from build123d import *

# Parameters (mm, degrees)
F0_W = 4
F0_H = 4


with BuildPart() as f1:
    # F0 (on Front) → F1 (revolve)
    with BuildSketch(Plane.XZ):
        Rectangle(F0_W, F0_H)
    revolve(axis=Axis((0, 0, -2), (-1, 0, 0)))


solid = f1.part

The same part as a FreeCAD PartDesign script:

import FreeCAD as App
import Part
import Sketcher

V = App.Vector

doc = App.newDocument("Part")
body = doc.addObject("PartDesign::Body", "Body")

# Sketch on XZ plane
sketch1 = body.newObject("Sketcher::SketchObject", "Sketch")
sketch1.AttachmentSupport = (doc.getObject("XZ_Plane"), [""])
sketch1.MapMode = "FlatFace"
sketch1.addGeometry(Part.LineSegment(V(-2, 2, 0), V(-2, -2, 0)), False)
sketch1.addGeometry(Part.LineSegment(V(-2, -2, 0), V(2, -2, 0)), False)
sketch1.addGeometry(Part.LineSegment(V(2, -2, 0), V(2, 2, 0)), False)
sketch1.addGeometry(Part.LineSegment(V(2, 2, 0), V(-2, 2, 0)), False)
sketch1.addGeometry(Part.LineSegment(V(2, -2, 0), V(-2, -2, 0)), True)  # axis
sketch1.addConstraint(Sketcher.Constraint("Coincident", 0, 2, 1, 1))
sketch1.addConstraint(Sketcher.Constraint("Coincident", 1, 2, 2, 1))
sketch1.addConstraint(Sketcher.Constraint("Coincident", 2, 2, 3, 1))
sketch1.addConstraint(Sketcher.Constraint("Coincident", 3, 2, 0, 1))
sketch1.addConstraint(Sketcher.Constraint("Vertical", 0))
sketch1.addConstraint(Sketcher.Constraint("Horizontal", 1))
sketch1.addConstraint(Sketcher.Constraint("Vertical", 2))
sketch1.addConstraint(Sketcher.Constraint("Horizontal", 3))
sketch1.addConstraint(Sketcher.Constraint("Horizontal", 4))
sketch1.addConstraint(Sketcher.Constraint("Coincident", 4, 1, 1, 2))
sketch1.addConstraint(Sketcher.Constraint("Symmetric", 0, 2, 2, 2, -1, 1))
sketch1.addConstraint(Sketcher.Constraint("Vertical", 3, 2, 4, 2))
sketch1.addConstraint(Sketcher.Constraint("Equal", 4, 0))
sketch1.addConstraint(Sketcher.Constraint("DistanceX", 1, 1, 1, 2, 4.0))
revolution = body.newObject("PartDesign::Revolution", "Revolution")
revolution.Profile = sketch1
revolution.ReferenceAxis = (sketch1, ["Axis0"])
revolution.Angle = 360

doc.recompute()
